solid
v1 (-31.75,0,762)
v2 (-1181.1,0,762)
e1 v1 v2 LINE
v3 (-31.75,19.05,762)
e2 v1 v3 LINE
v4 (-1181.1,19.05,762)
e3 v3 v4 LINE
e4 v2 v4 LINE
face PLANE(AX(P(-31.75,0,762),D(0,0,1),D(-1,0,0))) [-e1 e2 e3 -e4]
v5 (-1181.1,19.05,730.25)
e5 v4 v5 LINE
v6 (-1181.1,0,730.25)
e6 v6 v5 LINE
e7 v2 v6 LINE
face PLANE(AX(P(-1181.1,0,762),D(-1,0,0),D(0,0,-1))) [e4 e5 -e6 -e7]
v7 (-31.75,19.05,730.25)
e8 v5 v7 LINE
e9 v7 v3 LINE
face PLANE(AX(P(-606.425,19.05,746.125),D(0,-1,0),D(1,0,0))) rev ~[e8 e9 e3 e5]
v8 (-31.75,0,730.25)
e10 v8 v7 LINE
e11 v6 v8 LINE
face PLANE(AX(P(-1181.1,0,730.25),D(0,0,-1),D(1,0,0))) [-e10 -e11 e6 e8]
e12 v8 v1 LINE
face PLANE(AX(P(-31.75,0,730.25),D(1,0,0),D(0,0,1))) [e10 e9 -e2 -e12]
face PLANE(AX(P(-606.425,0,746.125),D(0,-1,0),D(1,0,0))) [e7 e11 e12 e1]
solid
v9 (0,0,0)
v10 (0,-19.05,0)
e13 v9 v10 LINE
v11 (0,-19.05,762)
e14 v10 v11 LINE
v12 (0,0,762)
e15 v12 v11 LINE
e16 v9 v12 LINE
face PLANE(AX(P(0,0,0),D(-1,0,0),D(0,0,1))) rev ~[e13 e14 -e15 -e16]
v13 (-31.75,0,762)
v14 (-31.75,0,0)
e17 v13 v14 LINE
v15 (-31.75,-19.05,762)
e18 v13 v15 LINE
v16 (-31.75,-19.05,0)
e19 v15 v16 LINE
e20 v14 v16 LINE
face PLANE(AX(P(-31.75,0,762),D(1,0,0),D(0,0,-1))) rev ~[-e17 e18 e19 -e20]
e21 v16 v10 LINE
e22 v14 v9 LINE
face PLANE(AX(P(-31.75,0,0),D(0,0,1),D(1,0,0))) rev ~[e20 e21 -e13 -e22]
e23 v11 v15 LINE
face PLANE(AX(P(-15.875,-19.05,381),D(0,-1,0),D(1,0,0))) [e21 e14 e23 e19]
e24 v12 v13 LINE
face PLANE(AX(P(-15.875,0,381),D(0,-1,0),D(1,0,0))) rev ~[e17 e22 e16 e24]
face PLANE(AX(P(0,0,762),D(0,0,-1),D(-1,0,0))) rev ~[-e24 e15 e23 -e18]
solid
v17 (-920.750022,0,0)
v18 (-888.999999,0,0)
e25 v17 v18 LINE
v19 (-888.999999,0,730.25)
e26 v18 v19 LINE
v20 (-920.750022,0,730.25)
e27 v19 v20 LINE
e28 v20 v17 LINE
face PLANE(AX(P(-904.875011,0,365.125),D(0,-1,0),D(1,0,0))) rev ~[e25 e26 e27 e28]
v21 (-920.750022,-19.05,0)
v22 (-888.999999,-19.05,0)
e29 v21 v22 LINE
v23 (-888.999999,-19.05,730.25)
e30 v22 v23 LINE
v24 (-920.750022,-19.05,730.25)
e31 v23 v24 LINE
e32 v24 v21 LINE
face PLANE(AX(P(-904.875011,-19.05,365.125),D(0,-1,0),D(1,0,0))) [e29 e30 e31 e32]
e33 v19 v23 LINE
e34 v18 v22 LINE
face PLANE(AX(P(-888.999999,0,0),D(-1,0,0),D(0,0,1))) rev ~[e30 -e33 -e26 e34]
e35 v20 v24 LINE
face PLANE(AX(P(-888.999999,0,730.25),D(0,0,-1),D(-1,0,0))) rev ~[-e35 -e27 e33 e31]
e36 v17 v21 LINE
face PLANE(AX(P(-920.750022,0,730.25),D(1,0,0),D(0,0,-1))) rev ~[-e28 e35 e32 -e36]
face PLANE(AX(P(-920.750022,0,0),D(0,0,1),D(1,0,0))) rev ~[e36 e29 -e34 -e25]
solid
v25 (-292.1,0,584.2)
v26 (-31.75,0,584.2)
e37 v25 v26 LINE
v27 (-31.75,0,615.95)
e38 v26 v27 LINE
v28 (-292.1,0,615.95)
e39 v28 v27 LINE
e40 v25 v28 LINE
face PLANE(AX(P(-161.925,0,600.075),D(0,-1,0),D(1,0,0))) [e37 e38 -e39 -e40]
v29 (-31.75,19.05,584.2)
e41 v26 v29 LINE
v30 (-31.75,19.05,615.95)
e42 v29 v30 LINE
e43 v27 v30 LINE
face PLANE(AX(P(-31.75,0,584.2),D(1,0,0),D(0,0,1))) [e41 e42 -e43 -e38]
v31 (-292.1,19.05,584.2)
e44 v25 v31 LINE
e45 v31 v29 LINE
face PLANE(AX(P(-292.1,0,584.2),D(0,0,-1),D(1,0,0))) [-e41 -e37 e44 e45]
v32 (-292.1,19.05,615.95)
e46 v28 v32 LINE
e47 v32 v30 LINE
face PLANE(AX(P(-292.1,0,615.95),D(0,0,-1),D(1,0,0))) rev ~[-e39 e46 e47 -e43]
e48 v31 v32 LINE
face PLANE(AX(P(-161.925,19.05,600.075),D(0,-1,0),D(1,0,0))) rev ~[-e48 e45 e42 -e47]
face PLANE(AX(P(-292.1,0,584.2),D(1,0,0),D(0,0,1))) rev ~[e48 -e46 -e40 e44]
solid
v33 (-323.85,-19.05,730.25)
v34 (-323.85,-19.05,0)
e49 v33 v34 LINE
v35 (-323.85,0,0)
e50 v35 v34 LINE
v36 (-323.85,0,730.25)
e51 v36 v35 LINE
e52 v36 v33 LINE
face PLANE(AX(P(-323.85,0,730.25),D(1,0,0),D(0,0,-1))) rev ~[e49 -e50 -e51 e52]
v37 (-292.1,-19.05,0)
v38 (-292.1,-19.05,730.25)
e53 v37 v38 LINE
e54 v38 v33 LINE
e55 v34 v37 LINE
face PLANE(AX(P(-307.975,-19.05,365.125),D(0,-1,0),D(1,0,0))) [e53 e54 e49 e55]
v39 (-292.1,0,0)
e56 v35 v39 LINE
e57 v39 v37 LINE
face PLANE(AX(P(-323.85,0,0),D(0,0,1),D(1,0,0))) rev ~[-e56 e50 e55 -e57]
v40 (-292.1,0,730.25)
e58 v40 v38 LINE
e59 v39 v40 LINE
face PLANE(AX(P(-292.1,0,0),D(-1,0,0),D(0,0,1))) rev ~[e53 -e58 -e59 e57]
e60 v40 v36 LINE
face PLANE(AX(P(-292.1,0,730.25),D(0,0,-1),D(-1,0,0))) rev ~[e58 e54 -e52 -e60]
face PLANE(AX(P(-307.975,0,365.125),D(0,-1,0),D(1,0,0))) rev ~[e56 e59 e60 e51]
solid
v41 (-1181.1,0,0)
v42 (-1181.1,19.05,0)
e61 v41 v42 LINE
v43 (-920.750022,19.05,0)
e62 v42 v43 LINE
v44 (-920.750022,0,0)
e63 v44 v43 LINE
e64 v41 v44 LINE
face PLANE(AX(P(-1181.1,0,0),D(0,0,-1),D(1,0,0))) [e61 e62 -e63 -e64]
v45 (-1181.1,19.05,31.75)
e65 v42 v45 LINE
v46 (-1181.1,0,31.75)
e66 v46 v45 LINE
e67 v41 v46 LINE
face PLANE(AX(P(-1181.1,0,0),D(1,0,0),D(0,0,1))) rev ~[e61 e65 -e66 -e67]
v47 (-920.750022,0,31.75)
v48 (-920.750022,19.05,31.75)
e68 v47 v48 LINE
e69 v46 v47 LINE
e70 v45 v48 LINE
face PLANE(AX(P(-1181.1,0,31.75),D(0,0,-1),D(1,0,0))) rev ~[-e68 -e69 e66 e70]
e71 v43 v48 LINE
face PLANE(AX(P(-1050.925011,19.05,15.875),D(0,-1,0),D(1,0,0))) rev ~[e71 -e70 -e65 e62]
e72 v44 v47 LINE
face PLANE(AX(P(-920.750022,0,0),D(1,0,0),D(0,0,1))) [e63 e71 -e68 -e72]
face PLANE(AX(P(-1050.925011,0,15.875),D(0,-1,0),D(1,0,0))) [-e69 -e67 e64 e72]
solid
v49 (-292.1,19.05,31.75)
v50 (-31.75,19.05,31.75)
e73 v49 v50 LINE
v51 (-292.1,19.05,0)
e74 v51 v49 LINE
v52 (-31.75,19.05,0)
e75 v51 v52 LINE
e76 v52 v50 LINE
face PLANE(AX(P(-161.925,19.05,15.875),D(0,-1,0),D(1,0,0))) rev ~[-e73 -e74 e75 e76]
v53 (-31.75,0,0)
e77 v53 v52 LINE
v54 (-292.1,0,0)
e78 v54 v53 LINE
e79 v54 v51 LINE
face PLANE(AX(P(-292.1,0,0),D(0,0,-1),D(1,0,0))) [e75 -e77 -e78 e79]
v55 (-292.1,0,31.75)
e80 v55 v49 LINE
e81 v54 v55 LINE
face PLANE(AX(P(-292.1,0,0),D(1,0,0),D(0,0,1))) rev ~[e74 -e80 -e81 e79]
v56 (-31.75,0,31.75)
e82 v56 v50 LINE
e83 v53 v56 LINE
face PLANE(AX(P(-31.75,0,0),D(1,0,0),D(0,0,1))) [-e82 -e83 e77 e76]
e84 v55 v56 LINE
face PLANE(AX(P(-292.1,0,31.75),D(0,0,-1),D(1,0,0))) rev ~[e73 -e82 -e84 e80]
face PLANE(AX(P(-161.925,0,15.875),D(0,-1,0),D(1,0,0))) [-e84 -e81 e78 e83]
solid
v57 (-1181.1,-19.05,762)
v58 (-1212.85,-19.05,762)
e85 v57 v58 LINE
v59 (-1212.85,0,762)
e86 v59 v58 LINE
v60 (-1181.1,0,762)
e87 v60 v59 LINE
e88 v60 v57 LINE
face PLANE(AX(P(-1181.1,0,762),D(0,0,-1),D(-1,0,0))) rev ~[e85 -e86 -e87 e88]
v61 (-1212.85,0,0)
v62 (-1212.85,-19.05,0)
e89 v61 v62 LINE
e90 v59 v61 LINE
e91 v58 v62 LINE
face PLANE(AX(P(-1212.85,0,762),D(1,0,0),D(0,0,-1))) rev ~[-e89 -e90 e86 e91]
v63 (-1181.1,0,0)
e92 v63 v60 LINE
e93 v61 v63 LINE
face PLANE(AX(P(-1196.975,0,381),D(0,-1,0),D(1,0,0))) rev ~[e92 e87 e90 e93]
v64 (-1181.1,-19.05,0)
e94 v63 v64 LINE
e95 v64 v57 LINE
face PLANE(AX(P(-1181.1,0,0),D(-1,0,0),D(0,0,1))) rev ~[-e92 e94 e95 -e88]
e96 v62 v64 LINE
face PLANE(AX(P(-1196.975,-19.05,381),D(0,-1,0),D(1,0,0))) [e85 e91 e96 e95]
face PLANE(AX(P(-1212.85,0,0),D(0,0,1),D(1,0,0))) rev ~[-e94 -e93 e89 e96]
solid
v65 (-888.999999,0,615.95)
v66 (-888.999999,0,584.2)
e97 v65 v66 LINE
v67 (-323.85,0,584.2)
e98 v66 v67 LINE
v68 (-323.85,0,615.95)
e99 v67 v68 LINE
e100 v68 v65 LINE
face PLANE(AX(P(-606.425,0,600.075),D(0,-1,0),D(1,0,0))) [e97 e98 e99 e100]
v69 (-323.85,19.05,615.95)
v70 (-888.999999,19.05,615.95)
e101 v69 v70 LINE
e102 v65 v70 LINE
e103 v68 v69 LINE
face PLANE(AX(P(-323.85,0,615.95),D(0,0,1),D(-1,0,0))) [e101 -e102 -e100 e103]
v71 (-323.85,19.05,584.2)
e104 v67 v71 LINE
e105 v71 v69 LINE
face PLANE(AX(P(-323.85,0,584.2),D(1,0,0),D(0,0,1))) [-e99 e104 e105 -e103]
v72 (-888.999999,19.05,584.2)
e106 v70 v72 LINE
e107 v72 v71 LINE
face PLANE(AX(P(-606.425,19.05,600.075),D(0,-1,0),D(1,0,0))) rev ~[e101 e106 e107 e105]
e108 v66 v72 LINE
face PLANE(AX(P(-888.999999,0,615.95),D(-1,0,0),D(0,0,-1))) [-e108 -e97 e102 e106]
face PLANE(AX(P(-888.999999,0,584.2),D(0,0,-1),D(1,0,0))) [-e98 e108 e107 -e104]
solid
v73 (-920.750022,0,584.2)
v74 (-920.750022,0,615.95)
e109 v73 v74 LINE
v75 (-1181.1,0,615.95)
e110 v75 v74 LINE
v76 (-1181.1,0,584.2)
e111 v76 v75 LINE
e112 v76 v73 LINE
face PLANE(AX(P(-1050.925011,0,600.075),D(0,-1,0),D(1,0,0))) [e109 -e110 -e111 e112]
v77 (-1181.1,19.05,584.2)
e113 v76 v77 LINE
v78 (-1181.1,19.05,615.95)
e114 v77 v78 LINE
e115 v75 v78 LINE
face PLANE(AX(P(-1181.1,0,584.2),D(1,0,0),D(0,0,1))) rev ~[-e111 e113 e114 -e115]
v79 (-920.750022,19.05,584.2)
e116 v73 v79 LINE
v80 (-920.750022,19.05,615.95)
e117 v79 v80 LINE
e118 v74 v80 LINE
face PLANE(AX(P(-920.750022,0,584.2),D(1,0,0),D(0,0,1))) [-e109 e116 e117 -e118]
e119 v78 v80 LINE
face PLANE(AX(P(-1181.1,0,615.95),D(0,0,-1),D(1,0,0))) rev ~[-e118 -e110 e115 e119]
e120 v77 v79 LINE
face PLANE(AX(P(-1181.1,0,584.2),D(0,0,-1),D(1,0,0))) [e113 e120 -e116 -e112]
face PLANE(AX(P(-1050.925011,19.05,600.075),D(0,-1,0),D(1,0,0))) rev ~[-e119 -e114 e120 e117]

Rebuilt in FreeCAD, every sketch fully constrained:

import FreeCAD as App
import Part
import Sketcher

V = App.Vector
Q = App.Units.Quantity


def add_polygon(sketch, points):
    """Adds a closed chain of lines whose ends are joined by coincident constraints."""
    first, n = sketch.GeometryCount, len(points)
    for a, b in zip(points, points[1:] + points[:1]):
        sketch.addGeometry(Part.LineSegment(App.Vector(*a, 0), App.Vector(*b, 0)), False)
    for i in range(n):
        sketch.addConstraint(Sketcher.Constraint("Coincident", first + i, 2, first + (i + 1) % n, 1))

doc = App.newDocument("Part")
body = doc.addObject("PartDesign::Body", "Body")
body.AllowCompound = True

# Sketch on XZ plane
sketch1 = doc.addObject("Sketcher::SketchObject", "Sketch")
body.addObject(sketch1)
sketch1.AttachmentSupport = (doc.XZ_Plane, [""])
sketch1.MapMode = "FlatFace"
add_polygon(sketch1, [(-1181, 762), (-1213, 762), (-1213, 0), (-1181, 0)])  # lines 0-3
add_polygon(sketch1, [(-889, 730), (-921, 730), (-921, 0), (-889, 0)])  # lines 4-7
add_polygon(sketch1, [(-324, 0), (-292, 0), (-292, 730), (-324, 730)])  # lines 8-11
add_polygon(sketch1, [(-32, 0), (0, 0), (0, 762), (-32, 762)])  # lines 12-15
sketch1.addConstraint([
    Sketcher.Constraint("Horizontal", 0),
    Sketcher.Constraint("Vertical", 1),
    Sketcher.Constraint("Horizontal", 2),
    Sketcher.Constraint("Vertical", 3),
    Sketcher.Constraint("Horizontal", 4),
    Sketcher.Constraint("Vertical", 5),
    Sketcher.Constraint("Horizontal", 6),
    Sketcher.Constraint("Vertical", 7),
    Sketcher.Constraint("Horizontal", 8),
    Sketcher.Constraint("Vertical", 9),
    Sketcher.Constraint("Horizontal", 10),
    Sketcher.Constraint("Vertical", 11),
    Sketcher.Constraint("Horizontal", 12),
    Sketcher.Constraint("Vertical", 13),
    Sketcher.Constraint("Horizontal", 14),
    Sketcher.Constraint("Vertical", 15),
    Sketcher.Constraint("Coincident", 12, 2, -1, 1),
    Sketcher.Constraint("PointOnObject", 1, 2, -1),
    Sketcher.Constraint("PointOnObject", 5, 2, -1),
    Sketcher.Constraint("PointOnObject", 8, 2, -1),
    Sketcher.Constraint("Horizontal", 7, 2, 9, 2),
    Sketcher.Constraint("Horizontal", 3, 2, 13, 2),
    Sketcher.Constraint("Equal", 2, 8),
    Sketcher.Constraint("Equal", 10, 12),
    Sketcher.Constraint("DistanceY", 1, 2, 1, 1, Q("30 in")),
    Sketcher.Constraint("DistanceX", 6, 2, -1, 1, Q("35 in")),
    Sketcher.Constraint("DistanceX", 2, 2, 8, 2, Q("35 in")),
    Sketcher.Constraint("DistanceX", 0, 2, 0, 1, Q("1.25 in")),
    Sketcher.Constraint("DistanceY", 5, 2, 5, 1, Q("28.75 in")),
    Sketcher.Constraint("DistanceX", 2, 2, -1, 1, Q("46.5 in")),
    Sketcher.Constraint("DistanceX", 4, 2, 4, 1, 31.750023),
])
pad1 = doc.addObject("PartDesign::Pad", "Pad")
body.addObject(pad1)
pad1.Profile = sketch1
pad1.Length = Q("0.75 in")
body2 = doc.addObject("PartDesign::Body", "Body001")
body2.AllowCompound = True

# Sketch on XZ plane
sketch2 = doc.addObject("Sketcher::SketchObject", "Sketch001")
body2.addObject(sketch2)
sketch2.AttachmentSupport = (doc.getObject("XZ_Plane001"), [""])
sketch2.MapMode = "FlatFace"
add_polygon(sketch2, [(-1181, 32), (-1181, 0), (-921, 0), (-921, 32)])  # lines 0-3
add_polygon(sketch2, [(-292, 32), (-292, 0), (-32, 0), (-32, 32)])  # lines 4-7
add_polygon(sketch2, [(-324, 584), (-324, 616), (-889, 616), (-889, 584)])  # lines 8-11
add_polygon(sketch2, [(-1181, 616), (-1181, 584), (-921, 584), (-921, 616)])  # lines 12-15
add_polygon(sketch2, [(-32, 730), (-32, 762), (-1181, 762), (-1181, 730)])  # lines 16-19
add_polygon(sketch2, [(-292, 616), (-292, 584), (-32, 584), (-32, 616)])  # lines 20-23
sketch2.addConstraint([
    Sketcher.Constraint("Vertical", 0),
    Sketcher.Constraint("Horizontal", 1),
    Sketcher.Constraint("Vertical", 2),
    Sketcher.Constraint("Horizontal", 3),
    Sketcher.Constraint("Vertical", 4),
    Sketcher.Constraint("Horizontal", 5),
    Sketcher.Constraint("Vertical", 6),
    Sketcher.Constraint("Horizontal", 7),
    Sketcher.Constraint("Vertical", 8),
    Sketcher.Constraint("Horizontal", 9),
    Sketcher.Constraint("Vertical", 10),
    Sketcher.Constraint("Horizontal", 11),
    Sketcher.Constraint("Vertical", 12),
    Sketcher.Constraint("Horizontal", 13),
    Sketcher.Constraint("Vertical", 14),
    Sketcher.Constraint("Horizontal", 15),
    Sketcher.Constraint("Vertical", 16),
    Sketcher.Constraint("Horizontal", 17),
    Sketcher.Constraint("Vertical", 18),
    Sketcher.Constraint("Horizontal", 19),
    Sketcher.Constraint("Vertical", 20),
    Sketcher.Constraint("Horizontal", 21),
    Sketcher.Constraint("Vertical", 22),
    Sketcher.Constraint("Horizontal", 23),
    Sketcher.Constraint("PointOnObject", 0, 2, -1),
    Sketcher.Constraint("PointOnObject", 4, 2, -1),
    Sketcher.Constraint("Horizontal", 3, 2, 6, 2),
    Sketcher.Constraint("Horizontal", 11, 2, 12, 2),
    Sketcher.Constraint("Horizontal", 9, 2, 14, 2),
    Sketcher.Constraint("Horizontal", 13, 2, 20, 2),
    Sketcher.Constraint("Horizontal", 15, 2, 22, 2),
    Sketcher.Constraint("Vertical", 3, 2, 12, 2),
    Sketcher.Constraint("Vertical", 2, 2, 13, 2),
    Sketcher.Constraint("Vertical", 6, 2, 16, 2),
    Sketcher.Constraint("Vertical", 15, 2, 17, 2),
    Sketcher.Constraint("Vertical", 7, 2, 20, 2),
    Sketcher.Constraint("Vertical", 19, 2, 21, 2),
    Sketcher.Constraint("Equal", 6, 8),
    Sketcher.Constraint("Equal", 14, 16),
    Sketcher.Constraint("DistanceX", 9, 2, -1, 1, Q("35 in")),
    Sketcher.Constraint("DistanceY", -1, 1, 10, 2, Q("23 in")),
    Sketcher.Constraint("DistanceY", -1, 1, 16, 2, Q("30 in")),
    Sketcher.Constraint("DistanceX", 0, 2, 4, 2, Q("35 in")),
    Sketcher.Constraint("DistanceX", 5, 1, 5, 2, Q("10.25 in")),
    Sketcher.Constraint("DistanceX", 9, 2, 9, 1, Q("22.25 in")),
    Sketcher.Constraint("DistanceY", 0, 2, 0, 1, Q("1.25 in")),
    Sketcher.Constraint("DistanceX", 0, 2, -1, 1, Q("46.5 in")),
    Sketcher.Constraint("DistanceX", 1, 1, 1, 2, 260.349978),
])
pad2 = doc.addObject("PartDesign::Pad", "Pad001")
body2.addObject(pad2)
pad2.Profile = sketch2
pad2.Length = Q("0.75 in")
pad2.Reversed = True

doc.recompute()
